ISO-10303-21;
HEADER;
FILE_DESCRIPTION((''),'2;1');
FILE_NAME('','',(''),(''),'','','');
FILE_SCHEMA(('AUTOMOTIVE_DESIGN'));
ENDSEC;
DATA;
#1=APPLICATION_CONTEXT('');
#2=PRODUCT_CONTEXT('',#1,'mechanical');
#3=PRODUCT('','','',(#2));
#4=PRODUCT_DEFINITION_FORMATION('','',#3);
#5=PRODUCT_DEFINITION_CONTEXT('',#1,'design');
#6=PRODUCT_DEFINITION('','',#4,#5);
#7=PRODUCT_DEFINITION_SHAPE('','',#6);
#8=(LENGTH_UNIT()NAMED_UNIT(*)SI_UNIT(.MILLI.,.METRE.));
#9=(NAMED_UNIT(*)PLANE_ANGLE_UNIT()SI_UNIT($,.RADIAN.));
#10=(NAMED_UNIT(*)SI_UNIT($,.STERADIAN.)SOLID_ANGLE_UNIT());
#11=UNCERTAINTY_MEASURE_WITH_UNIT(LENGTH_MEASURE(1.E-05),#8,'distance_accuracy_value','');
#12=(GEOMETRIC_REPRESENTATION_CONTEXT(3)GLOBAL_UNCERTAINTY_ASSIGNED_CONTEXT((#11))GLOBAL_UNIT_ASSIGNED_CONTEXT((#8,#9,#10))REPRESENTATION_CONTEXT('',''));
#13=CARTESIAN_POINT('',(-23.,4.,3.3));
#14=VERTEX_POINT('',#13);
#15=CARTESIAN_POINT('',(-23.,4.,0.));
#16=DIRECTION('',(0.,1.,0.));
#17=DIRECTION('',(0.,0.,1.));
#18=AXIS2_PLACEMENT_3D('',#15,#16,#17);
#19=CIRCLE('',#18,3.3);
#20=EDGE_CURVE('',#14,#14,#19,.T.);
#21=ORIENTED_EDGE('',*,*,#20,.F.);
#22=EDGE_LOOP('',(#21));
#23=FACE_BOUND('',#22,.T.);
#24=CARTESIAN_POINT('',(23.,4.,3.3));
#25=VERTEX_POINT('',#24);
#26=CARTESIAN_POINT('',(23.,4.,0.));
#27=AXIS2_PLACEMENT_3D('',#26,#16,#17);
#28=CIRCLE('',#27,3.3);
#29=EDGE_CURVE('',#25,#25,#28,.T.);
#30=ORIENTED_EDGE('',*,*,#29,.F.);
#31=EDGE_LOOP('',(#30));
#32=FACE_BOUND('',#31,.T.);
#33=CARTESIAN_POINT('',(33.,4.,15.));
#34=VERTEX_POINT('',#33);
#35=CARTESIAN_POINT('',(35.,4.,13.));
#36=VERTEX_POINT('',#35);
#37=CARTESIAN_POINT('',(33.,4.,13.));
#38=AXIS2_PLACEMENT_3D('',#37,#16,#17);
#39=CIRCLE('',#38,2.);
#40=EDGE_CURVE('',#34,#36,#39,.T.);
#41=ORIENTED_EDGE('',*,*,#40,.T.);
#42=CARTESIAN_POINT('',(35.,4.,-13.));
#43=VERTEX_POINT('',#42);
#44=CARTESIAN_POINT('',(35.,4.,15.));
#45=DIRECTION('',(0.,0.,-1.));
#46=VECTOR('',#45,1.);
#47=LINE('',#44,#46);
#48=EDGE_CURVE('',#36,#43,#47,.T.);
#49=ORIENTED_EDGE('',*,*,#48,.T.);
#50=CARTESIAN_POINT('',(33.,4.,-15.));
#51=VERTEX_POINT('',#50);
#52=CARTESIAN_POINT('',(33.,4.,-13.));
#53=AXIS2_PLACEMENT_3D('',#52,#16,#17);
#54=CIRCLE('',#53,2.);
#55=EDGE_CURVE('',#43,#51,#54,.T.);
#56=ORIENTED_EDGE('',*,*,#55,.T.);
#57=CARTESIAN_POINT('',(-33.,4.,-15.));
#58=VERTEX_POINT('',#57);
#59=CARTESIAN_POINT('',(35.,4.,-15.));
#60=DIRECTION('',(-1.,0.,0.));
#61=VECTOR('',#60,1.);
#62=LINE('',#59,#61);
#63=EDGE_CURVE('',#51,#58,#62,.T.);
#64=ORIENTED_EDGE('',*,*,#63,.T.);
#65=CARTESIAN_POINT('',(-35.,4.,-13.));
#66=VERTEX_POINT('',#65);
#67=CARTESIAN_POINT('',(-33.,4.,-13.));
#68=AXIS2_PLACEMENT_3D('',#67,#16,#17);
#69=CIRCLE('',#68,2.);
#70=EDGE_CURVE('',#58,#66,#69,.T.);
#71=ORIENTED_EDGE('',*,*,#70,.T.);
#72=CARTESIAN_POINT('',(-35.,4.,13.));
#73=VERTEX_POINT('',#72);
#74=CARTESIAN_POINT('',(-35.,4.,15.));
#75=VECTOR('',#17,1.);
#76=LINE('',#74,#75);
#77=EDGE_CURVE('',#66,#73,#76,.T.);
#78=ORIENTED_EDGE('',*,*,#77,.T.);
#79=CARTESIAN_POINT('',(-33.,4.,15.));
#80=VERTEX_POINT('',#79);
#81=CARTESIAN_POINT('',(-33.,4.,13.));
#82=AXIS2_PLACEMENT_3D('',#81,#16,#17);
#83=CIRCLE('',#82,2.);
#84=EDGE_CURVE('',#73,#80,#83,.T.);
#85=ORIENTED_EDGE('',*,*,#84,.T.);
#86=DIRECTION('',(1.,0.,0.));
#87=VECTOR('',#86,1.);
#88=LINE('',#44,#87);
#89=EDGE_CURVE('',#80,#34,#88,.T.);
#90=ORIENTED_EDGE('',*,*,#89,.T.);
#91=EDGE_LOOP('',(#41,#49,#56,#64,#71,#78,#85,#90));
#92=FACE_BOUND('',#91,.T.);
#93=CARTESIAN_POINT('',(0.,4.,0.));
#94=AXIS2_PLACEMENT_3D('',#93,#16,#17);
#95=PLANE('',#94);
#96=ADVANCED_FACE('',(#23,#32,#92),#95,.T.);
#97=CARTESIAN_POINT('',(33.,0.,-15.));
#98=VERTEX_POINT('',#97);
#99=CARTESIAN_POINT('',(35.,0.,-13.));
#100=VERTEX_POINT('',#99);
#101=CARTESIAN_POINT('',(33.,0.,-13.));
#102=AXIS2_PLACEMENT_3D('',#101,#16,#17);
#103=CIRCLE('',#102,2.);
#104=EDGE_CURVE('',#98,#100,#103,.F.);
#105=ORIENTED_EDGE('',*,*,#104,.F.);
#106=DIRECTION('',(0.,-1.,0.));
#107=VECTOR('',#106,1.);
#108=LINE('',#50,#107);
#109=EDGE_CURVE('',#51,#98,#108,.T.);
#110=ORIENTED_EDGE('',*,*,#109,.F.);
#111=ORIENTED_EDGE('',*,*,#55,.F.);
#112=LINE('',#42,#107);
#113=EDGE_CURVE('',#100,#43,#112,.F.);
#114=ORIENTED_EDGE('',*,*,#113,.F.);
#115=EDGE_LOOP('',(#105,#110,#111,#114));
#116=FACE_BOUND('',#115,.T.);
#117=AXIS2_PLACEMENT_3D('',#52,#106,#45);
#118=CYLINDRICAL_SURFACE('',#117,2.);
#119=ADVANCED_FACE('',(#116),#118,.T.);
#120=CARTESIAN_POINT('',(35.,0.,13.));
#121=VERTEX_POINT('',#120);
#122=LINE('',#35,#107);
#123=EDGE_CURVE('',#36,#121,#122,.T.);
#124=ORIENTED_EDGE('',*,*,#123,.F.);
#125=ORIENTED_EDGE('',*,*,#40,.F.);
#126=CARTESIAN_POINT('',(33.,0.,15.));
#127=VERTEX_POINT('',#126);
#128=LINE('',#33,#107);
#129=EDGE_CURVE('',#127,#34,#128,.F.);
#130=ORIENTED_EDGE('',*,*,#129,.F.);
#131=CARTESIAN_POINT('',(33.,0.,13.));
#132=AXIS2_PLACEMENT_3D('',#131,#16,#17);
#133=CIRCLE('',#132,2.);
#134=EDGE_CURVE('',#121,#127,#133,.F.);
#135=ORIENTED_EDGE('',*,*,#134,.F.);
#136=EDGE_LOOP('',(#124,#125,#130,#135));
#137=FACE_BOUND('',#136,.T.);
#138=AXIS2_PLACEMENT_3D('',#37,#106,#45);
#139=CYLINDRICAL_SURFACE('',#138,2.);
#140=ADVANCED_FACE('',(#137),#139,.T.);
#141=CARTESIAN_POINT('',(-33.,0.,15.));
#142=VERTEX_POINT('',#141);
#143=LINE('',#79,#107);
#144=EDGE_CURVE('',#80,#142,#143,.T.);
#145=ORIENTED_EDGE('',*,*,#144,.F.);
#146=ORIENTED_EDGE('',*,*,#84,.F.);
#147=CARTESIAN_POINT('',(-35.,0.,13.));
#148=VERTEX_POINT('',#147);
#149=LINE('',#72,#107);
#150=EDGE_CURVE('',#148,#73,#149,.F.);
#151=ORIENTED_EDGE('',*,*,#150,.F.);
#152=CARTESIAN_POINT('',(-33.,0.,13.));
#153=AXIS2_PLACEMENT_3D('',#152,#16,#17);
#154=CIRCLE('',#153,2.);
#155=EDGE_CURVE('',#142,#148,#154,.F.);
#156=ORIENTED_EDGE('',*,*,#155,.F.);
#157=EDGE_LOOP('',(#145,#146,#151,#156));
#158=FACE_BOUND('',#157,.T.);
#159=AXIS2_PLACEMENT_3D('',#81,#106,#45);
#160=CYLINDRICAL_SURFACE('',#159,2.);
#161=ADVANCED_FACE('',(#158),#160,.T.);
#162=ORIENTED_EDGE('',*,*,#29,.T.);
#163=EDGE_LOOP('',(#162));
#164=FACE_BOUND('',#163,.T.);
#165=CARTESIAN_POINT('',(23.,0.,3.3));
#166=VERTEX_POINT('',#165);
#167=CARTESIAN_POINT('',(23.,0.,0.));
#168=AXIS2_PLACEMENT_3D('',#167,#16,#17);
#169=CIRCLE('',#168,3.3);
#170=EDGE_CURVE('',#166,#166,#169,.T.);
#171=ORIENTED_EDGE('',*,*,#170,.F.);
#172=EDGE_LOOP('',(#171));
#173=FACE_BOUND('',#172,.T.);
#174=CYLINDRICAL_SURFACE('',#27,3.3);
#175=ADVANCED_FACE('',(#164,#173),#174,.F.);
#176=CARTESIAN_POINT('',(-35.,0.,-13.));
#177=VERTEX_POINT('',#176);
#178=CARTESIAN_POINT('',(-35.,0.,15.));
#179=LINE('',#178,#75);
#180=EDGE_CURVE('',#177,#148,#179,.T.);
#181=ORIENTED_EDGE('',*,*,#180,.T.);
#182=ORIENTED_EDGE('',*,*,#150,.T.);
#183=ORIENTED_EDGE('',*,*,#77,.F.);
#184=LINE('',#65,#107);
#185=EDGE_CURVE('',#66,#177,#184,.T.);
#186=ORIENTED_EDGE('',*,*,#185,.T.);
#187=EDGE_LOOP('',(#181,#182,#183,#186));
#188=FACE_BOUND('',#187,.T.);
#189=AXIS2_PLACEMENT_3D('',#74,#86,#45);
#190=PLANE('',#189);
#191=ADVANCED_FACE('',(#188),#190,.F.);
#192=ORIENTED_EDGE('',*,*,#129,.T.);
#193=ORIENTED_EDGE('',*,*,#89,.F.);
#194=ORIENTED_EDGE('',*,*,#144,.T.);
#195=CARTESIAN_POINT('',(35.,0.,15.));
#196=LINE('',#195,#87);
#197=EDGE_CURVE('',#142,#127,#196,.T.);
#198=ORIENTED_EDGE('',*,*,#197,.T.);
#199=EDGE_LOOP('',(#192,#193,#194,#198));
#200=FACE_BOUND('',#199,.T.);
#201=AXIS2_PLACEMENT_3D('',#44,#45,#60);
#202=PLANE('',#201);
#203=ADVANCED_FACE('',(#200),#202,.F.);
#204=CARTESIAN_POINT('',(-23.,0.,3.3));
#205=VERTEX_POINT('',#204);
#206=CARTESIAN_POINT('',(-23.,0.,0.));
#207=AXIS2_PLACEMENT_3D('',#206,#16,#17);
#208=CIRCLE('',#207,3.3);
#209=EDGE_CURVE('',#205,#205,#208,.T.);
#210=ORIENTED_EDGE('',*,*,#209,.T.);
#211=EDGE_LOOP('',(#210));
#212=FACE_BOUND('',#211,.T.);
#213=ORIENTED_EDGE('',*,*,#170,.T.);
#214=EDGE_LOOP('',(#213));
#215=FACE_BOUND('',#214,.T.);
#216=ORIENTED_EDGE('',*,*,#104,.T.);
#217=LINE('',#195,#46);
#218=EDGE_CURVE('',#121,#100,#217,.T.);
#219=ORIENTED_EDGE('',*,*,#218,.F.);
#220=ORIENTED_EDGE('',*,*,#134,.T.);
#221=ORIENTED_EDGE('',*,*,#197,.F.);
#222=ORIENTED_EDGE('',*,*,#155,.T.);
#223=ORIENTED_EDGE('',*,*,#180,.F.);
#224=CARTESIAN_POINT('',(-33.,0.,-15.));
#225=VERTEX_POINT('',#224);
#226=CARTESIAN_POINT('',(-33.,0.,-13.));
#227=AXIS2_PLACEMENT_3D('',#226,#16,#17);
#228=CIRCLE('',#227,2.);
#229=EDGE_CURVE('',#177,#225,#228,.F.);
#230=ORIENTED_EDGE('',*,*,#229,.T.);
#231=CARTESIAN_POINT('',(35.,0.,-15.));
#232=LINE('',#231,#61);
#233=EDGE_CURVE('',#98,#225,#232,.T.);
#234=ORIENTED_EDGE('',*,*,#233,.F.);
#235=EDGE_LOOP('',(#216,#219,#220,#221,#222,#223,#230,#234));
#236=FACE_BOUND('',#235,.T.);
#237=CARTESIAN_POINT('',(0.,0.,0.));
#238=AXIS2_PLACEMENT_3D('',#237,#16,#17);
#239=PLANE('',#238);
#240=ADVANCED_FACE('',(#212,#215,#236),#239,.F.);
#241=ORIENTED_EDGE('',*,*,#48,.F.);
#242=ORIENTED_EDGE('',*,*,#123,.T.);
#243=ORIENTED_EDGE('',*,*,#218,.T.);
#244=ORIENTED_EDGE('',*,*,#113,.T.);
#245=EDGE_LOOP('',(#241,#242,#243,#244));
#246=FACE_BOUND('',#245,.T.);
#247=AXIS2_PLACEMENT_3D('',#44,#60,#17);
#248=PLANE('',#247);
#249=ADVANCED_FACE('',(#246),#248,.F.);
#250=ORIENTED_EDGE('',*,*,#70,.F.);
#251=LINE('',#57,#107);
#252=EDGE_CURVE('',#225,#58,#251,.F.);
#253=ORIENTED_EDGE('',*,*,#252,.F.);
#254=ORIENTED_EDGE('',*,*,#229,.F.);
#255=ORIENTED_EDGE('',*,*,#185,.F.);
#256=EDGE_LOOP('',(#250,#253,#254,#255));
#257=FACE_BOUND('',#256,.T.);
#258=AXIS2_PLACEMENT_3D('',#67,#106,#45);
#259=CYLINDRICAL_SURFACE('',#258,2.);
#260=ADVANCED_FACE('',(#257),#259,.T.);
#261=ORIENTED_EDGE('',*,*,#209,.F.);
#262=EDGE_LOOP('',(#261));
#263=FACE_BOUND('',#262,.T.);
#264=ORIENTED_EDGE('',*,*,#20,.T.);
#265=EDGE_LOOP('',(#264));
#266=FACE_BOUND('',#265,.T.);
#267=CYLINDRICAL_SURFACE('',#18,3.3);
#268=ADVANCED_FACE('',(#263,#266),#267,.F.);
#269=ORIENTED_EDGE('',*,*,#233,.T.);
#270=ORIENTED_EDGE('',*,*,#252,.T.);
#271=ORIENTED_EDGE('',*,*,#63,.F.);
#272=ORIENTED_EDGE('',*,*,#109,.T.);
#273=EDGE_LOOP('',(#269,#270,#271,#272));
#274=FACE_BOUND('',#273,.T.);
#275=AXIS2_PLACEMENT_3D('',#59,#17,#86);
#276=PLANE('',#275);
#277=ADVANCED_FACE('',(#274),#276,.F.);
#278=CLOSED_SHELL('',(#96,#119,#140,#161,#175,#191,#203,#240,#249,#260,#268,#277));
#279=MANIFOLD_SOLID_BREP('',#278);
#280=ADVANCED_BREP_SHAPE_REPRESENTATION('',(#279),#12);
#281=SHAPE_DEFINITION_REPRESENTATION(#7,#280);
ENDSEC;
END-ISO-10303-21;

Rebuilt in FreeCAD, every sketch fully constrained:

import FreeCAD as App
import Part
import Sketcher
from FreeCAD import Vector


def edges_at(feature, points):
    """Names of the edges that pass closest to the given points."""
    edges = feature.Shape.Edges
    near = lambda p: min(range(len(edges)), key=lambda i: edges[i].distToShape(Part.Vertex(*p))[0])
    return sorted({f"Edge{near(p) + 1}" for p in points})


def add_polygon(sketch, points):
    """Adds a closed chain of lines whose ends are joined by coincident constraints."""
    first, n = sketch.GeometryCount, len(points)
    for a, b in zip(points, points[1:] + points[:1]):
        sketch.addGeometry(Part.LineSegment(App.Vector(*a, 0), App.Vector(*b, 0)), False)
    for i in range(n):
        sketch.addConstraint(Sketcher.Constraint("Coincident", first + i, 2, first + (i + 1) % n, 1))

doc = App.newDocument("Part")
params = doc.addObject("Spreadsheet::Sheet", "Params")
for row, (alias, value) in enumerate([
    ("sketch1_width", "70 mm"),
    ("sketch1_height", "30 mm"),
    ("pad1_length", "4 mm"),
    ("fillet_radius", "2 mm"),
    ("sketch2_diameter", "6.6 mm"),
    ("hole_diameter", "6.6 mm"),
    ("hole_depth", "7 mm"),
], start=1):
    params.set(f"A{row}", alias)
    params.set(f"B{row}", "=" + value)
    params.setAlias(f"B{row}", alias)

body = doc.addObject("PartDesign::Body", "Body")

sketch1 = body.newObject("Sketcher::SketchObject", "Sketch")
sketch1.AttachmentSupport = (doc.getObject("XZ_Plane"), [""])
sketch1.MapMode = "FlatFace"
add_polygon(sketch1, [(-35, -15), (-35, 15), (35, 15), (35, -15)])
sketch1.addConstraint([
    Sketcher.Constraint("Vertical", 0),
    Sketcher.Constraint("Horizontal", 1),
    Sketcher.Constraint("Vertical", 2),
    Sketcher.Constraint("Horizontal", 3),
    Sketcher.Constraint("Symmetric", 0, 2, 2, 2, -1, 1),
    Sketcher.Constraint("DistanceX", 1, 1, 1, 2, 70.0),
    Sketcher.Constraint("DistanceY", 0, 1, 0, 2, 30.0),
])
sketch1.setExpression("Constraints[9]", "Params.sketch1_width")
sketch1.setExpression("Constraints[10]", "Params.sketch1_height")
pad1 = body.newObject("PartDesign::Pad", "Pad")
pad1.Profile = sketch1
pad1.setExpression("Length", "Params.pad1_length")
pad1.Reversed = True
doc.recompute()

fillet = body.newObject("PartDesign::Fillet", "Fillet")
fillet.Base = (pad1, edges_at(pad1, [
    (-35, 2, -15),
    (35, 2, -15),
    (35, 2, 15),
    (-35, 2, 15),
]))
fillet.setExpression("Radius", "Params.fillet_radius")

sketch2 = body.newObject("Sketcher::SketchObject", "Sketch001")
sketch2.AttachmentSupport = (doc.getObject("XZ_Plane"), [""])
sketch2.MapMode = "FlatFace"
sketch2.AttachmentOffset = App.Placement(Vector(0, 0, -4), App.Rotation())
sketch2.addGeometry([
    Part.Circle(Vector(-23, 0, 0), Vector(0, 0, 1), 3.3),
    Part.Circle(Vector(23, 0, 0), Vector(0, 0, 1), 3.3),
], False)
sketch2.addConstraint([
    Sketcher.Constraint("Equal", 0, 1),
    Sketcher.Constraint("Symmetric", 0, 3, 1, 3, -1, 1),
    Sketcher.Constraint("PointOnObject", 0, 3, -1),
    Sketcher.Constraint("Diameter", 0, 6.6),
    Sketcher.Constraint("DistanceX", 0, 3, -1, 1, 23.0),
])
sketch2.setExpression("Constraints[3]", "Params.sketch2_diameter")
doc.recompute()
hole = body.newObject("PartDesign::Hole", "Hole")
hole.Profile = sketch2
hole.ThreadType = "None"
hole.setExpression("Diameter", "Params.hole_diameter")
hole.DepthType = "Dimension"
hole.setExpression("Depth", "Params.hole_depth")
hole.DrillPoint = "Angled"
hole.DrillPointAngle = 118
hole.Reversed = True

doc.recompute()
